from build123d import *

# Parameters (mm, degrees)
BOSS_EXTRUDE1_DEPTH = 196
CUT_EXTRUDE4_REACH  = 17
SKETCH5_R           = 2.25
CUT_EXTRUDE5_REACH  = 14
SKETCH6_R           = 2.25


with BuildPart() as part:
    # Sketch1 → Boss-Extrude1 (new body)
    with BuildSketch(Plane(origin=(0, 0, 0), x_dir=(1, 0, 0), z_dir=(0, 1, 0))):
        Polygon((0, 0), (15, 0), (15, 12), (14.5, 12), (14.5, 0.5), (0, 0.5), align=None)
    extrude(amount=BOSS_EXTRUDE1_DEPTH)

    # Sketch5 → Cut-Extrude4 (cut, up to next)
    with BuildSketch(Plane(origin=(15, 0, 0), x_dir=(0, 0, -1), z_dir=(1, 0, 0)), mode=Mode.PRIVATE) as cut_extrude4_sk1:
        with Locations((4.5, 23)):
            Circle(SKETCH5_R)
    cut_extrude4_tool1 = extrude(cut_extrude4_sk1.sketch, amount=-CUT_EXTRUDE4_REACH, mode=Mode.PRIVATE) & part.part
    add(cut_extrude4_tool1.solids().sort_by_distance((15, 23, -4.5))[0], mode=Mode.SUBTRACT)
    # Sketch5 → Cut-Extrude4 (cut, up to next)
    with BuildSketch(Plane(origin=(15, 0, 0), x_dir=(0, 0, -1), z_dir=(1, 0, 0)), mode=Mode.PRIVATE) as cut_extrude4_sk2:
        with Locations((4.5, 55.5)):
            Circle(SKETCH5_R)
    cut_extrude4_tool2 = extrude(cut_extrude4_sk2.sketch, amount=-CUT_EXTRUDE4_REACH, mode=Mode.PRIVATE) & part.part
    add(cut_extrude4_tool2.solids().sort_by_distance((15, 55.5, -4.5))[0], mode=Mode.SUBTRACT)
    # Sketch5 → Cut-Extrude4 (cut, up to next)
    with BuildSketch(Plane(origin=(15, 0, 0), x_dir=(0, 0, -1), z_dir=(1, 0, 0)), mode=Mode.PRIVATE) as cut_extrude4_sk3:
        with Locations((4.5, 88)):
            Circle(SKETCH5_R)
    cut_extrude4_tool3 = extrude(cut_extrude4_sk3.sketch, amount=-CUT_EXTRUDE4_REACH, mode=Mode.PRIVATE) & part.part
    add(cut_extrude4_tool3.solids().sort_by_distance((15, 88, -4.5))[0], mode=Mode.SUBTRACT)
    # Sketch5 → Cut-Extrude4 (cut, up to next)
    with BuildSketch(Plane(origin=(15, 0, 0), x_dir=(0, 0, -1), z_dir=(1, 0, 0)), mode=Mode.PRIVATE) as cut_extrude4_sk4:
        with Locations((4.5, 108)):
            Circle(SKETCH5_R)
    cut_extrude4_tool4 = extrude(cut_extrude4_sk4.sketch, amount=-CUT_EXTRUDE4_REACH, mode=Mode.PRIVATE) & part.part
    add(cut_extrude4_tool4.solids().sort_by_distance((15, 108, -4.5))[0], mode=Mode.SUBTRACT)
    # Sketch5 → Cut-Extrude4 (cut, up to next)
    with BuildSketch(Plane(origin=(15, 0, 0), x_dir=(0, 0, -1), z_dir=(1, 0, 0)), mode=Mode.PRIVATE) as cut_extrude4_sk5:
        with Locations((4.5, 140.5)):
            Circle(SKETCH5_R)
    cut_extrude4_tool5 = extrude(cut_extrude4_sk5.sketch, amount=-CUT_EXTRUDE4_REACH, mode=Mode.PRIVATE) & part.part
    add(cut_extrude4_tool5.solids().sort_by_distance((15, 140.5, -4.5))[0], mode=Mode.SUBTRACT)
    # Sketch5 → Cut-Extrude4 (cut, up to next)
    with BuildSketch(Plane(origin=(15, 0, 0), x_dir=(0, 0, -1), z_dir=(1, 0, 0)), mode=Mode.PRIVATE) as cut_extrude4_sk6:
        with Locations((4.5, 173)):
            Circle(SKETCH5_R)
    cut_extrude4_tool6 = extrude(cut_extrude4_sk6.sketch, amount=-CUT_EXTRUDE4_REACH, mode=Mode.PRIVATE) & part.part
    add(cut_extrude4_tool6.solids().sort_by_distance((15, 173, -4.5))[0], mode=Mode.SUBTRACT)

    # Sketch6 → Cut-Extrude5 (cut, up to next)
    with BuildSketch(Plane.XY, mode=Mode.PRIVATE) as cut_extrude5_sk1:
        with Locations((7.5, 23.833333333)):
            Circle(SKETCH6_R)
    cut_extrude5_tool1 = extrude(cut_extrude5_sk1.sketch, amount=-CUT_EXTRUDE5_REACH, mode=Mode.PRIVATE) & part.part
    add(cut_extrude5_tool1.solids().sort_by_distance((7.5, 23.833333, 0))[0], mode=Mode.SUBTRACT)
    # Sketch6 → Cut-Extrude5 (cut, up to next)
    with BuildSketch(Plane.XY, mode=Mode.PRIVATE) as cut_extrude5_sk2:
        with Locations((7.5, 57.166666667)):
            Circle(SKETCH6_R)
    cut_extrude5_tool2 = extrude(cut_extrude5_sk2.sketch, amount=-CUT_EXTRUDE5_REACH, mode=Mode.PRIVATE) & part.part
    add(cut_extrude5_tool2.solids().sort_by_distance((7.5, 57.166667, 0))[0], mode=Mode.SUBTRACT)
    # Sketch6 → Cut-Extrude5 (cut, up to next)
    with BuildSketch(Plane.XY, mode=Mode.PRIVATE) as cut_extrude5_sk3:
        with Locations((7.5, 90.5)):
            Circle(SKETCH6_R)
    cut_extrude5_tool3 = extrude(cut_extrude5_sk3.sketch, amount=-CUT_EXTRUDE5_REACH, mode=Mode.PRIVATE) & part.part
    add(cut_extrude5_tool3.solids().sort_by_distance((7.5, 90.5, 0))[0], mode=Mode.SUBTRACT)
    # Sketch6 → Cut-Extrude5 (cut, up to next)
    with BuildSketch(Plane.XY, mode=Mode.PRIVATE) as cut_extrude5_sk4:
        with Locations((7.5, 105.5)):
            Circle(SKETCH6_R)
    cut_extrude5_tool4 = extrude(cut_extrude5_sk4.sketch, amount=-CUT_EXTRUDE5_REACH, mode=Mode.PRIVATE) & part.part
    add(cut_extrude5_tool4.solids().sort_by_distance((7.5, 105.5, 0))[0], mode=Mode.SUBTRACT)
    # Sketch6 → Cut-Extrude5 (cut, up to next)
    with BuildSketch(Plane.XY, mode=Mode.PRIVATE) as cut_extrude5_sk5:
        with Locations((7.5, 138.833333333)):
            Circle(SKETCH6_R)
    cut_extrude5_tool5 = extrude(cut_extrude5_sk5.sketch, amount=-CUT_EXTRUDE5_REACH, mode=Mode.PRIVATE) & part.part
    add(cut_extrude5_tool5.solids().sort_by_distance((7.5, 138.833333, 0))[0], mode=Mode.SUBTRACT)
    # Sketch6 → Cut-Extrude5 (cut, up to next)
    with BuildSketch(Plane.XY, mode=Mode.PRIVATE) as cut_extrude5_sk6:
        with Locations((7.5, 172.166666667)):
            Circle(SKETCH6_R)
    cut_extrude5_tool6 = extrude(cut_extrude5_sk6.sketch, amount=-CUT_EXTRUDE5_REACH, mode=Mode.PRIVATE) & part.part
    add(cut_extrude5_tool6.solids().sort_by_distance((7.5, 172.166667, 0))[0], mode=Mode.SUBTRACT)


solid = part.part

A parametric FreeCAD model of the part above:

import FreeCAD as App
import Part
import Sketcher
from FreeCAD import Vector
Q = App.Units.Quantity

doc = App.newDocument("Part")
params = doc.addObject("Spreadsheet::Sheet", "Params")
for row, (alias, value) in enumerate([
    ("sketch1_width", "15 mm"),
    ("sketch1_height", "12 mm"),
    ("sketch1_width2", "0.5 mm"),
    ("pad1_length", "196 mm"),
    ("sketch2_diameter", "4.5 mm"),
    ("sketch3_diameter", "4.5 mm"),
    ("sketch4_diameter", "4.5 mm"),
    ("sketch5_diameter", "4.5 mm"),
    ("sketch6_diameter", "4.5 mm"),
    ("sketch7_diameter", "4.5 mm"),
    ("sketch8_diameter", "4.5 mm"),
    ("sketch9_diameter", "4.5 mm"),
    ("sketch10_diameter", "4.5 mm"),
    ("sketch11_diameter", "4.5 mm"),
    ("sketch12_diameter", "4.5 mm"),
    ("sketch13_diameter", "4.5 mm"),
], start=1):
    params.set(f"A{row}", alias)
    params.set(f"B{row}", "=" + value)
    params.setAlias(f"B{row}", alias)

body = doc.addObject("PartDesign::Body", "Body")

sketch1 = body.newObject("Sketcher::SketchObject", "Sketch")
sketch1.AttachmentSupport = (doc.getObject("XZ_Plane"), [""])
sketch1.MapMode = "FlatFace"
sketch1.addGeometry([
    Part.LineSegment(Vector(0, 0, 0), Vector(15, 0, 0)),
    Part.LineSegment(Vector(15, 0, 0), Vector(15, -12, 0)),
    Part.LineSegment(Vector(15, -12, 0), Vector(14.5, -12, 0)),
    Part.LineSegment(Vector(14.5, -12, 0), Vector(14.5, -0.5, 0)),
    Part.LineSegment(Vector(14.5, -0.5, 0), Vector(0, -0.5, 0)),
    Part.LineSegment(Vector(0, -0.5, 0), Vector(0, 0, 0)),
], False)
sketch1.addConstraint([
    Sketcher.Constraint("Coincident", 0, 2, 1, 1),
    Sketcher.Constraint("Coincident", 1, 2, 2, 1),
    Sketcher.Constraint("Coincident", 2, 2, 3, 1),
    Sketcher.Constraint("Coincident", 3, 2, 4, 1),
    Sketcher.Constraint("Coincident", 4, 2, 5, 1),
    Sketcher.Constraint("Coincident", 5, 2, 0, 1),
    Sketcher.Constraint("Horizontal", 0),
    Sketcher.Constraint("Vertical", 1),
    Sketcher.Constraint("Horizontal", 2),
    Sketcher.Constraint("Vertical", 3),
    Sketcher.Constraint("Horizontal", 4),
    Sketcher.Constraint("Vertical", 5),
    Sketcher.Constraint("Coincident", 5, 2, -1, 1),
    Sketcher.Constraint("Equal", 2, 5),
    Sketcher.Constraint("DistanceX", 0, 1, 0, 2, Q("15 mm")),
    Sketcher.Constraint("DistanceY", 1, 2, 1, 1, Q("12 mm")),
    Sketcher.Constraint("DistanceX", 2, 2, 2, 1, Q("0.5 mm")),
])
sketch1.setExpression("Constraints[14]", "Params.sketch1_width")
sketch1.setExpression("Constraints[15]", "Params.sketch1_height")
sketch1.setExpression("Constraints[16]", "Params.sketch1_width2")
pad1 = body.newObject("PartDesign::Pad", "Pad")
pad1.Profile = sketch1
pad1.setExpression("Length", "Params.pad1_length")
pad1.Reversed = True

sketch2 = body.newObject("Sketcher::SketchObject", "Sketch001")
sketch2.AttachmentSupport = (doc.getObject("YZ_Plane"), [""])
sketch2.MapMode = "FlatFace"
sketch2.AttachmentOffset = App.Placement(Vector(0, 0, 15), App.Rotation())
sketch2.addGeometry(Part.Circle(Vector(23, -4.5, 0), Vector(0, 0, 1), 2.2), False)
sketch2.addConstraint([
    Sketcher.Constraint("Diameter", 0, Q("4.5 mm")),
    Sketcher.Constraint("DistanceX", -1, 1, 0, 3, Q("23 mm")),
    Sketcher.Constraint("DistanceY", 0, 3, -1, 1, Q("4.5 mm")),
])
sketch2.setExpression("Constraints[0]", "Params.sketch2_diameter")
pocket1 = body.newObject("PartDesign::Pocket", "Pocket")
pocket1.Profile = sketch2
pocket1.Type = "UpToFirst"

sketch3 = body.newObject("Sketcher::SketchObject", "Sketch002")
sketch3.AttachmentSupport = (doc.getObject("YZ_Plane"), [""])
sketch3.MapMode = "FlatFace"
sketch3.AttachmentOffset = App.Placement(Vector(0, 0, 15), App.Rotation())
sketch3.addGeometry(Part.Circle(Vector(55.5, -4.5, 0), Vector(0, 0, 1), 2.2), False)
sketch3.addConstraint([
    Sketcher.Constraint("Diameter", 0, Q("4.5 mm")),
    Sketcher.Constraint("DistanceX", -1, 1, 0, 3, Q("55.5 mm")),
    Sketcher.Constraint("DistanceY", 0, 3, -1, 1, Q("4.5 mm")),
])
sketch3.setExpression("Constraints[0]", "Params.sketch3_diameter")
pocket2 = body.newObject("PartDesign::Pocket", "Pocket001")
pocket2.Profile = sketch3
pocket2.Type = "UpToFirst"

sketch4 = body.newObject("Sketcher::SketchObject", "Sketch003")
sketch4.AttachmentSupport = (doc.getObject("YZ_Plane"), [""])
sketch4.MapMode = "FlatFace"
sketch4.AttachmentOffset = App.Placement(Vector(0, 0, 15), App.Rotation())
sketch4.addGeometry(Part.Circle(Vector(88, -4.5, 0), Vector(0, 0, 1), 2.2), False)
sketch4.addConstraint([
    Sketcher.Constraint("Diameter", 0, Q("4.5 mm")),
    Sketcher.Constraint("DistanceX", -1, 1, 0, 3, Q("88 mm")),
    Sketcher.Constraint("DistanceY", 0, 3, -1, 1, Q("4.5 mm")),
])
sketch4.setExpression("Constraints[0]", "Params.sketch4_diameter")
pocket3 = body.newObject("PartDesign::Pocket", "Pocket002")
pocket3.Profile = sketch4
pocket3.Type = "UpToFirst"

sketch5 = body.newObject("Sketcher::SketchObject", "Sketch004")
sketch5.AttachmentSupport = (doc.getObject("YZ_Plane"), [""])
sketch5.MapMode = "FlatFace"
sketch5.AttachmentOffset = App.Placement(Vector(0, 0, 15), App.Rotation())
sketch5.addGeometry(Part.Circle(Vector(108, -4.5, 0), Vector(0, 0, 1), 2.2), False)
sketch5.addConstraint([
    Sketcher.Constraint("Diameter", 0, Q("4.5 mm")),
    Sketcher.Constraint("DistanceX", -1, 1, 0, 3, Q("108 mm")),
    Sketcher.Constraint("DistanceY", 0, 3, -1, 1, Q("4.5 mm")),
])
sketch5.setExpression("Constraints[0]", "Params.sketch5_diameter")
pocket4 = body.newObject("PartDesign::Pocket", "Pocket003")
pocket4.Profile = sketch5
pocket4.Type = "UpToFirst"

sketch6 = body.newObject("Sketcher::SketchObject", "Sketch005")
sketch6.AttachmentSupport = (doc.getObject("YZ_Plane"), [""])
sketch6.MapMode = "FlatFace"
sketch6.AttachmentOffset = App.Placement(Vector(0, 0, 15), App.Rotation())
sketch6.addGeometry(Part.Circle(Vector(140.5, -4.5, 0), Vector(0, 0, 1), 2.2), False)
sketch6.addConstraint([
    Sketcher.Constraint("Diameter", 0, Q("4.5 mm")),
    Sketcher.Constraint("DistanceX", -1, 1, 0, 3, Q("140.5 mm")),
    Sketcher.Constraint("DistanceY", 0, 3, -1, 1, Q("4.5 mm")),
])
sketch6.setExpression("Constraints[0]", "Params.sketch6_diameter")
pocket5 = body.newObject("PartDesign::Pocket", "Pocket004")
pocket5.Profile = sketch6
pocket5.Type = "UpToFirst"

sketch7 = body.newObject("Sketcher::SketchObject", "Sketch006")
sketch7.AttachmentSupport = (doc.getObject("YZ_Plane"), [""])
sketch7.MapMode = "FlatFace"
sketch7.AttachmentOffset = App.Placement(Vector(0, 0, 15), App.Rotation())
sketch7.addGeometry(Part.Circle(Vector(173, -4.5, 0), Vector(0, 0, 1), 2.2), False)
sketch7.addConstraint([
    Sketcher.Constraint("Diameter", 0, Q("4.5 mm")),
    Sketcher.Constraint("DistanceX", -1, 1, 0, 3, Q("173 mm")),
    Sketcher.Constraint("DistanceY", 0, 3, -1, 1, Q("4.5 mm")),
])
sketch7.setExpression("Constraints[0]", "Params.sketch7_diameter")
pocket6 = body.newObject("PartDesign::Pocket", "Pocket005")
pocket6.Profile = sketch7
pocket6.Type = "UpToFirst"

sketch8 = body.newObject("Sketcher::SketchObject", "Sketch007")
sketch8.AttachmentSupport = (doc.getObject("XY_Plane"), [""])
sketch8.MapMode = "FlatFace"
sketch8.addGeometry(Part.Circle(Vector(7.5, 23.8, 0), Vector(0, 0, 1), 2.2), False)
sketch8.addConstraint([
    Sketcher.Constraint("Diameter", 0, Q("4.5 mm")),
    Sketcher.Constraint("DistanceX", -1, 1, 0, 3, Q("7.5 mm")),
    Sketcher.Constraint("DistanceY", -1, 1, 0, 3, Q("23.833333 mm")),
])
sketch8.setExpression("Constraints[0]", "Params.sketch8_diameter")
pocket7 = body.newObject("PartDesign::Pocket", "Pocket006")
pocket7.Profile = sketch8
pocket7.Type = "UpToFirst"

sketch9 = body.newObject("Sketcher::SketchObject", "Sketch008")
sketch9.AttachmentSupport = (doc.getObject("XY_Plane"), [""])
sketch9.MapMode = "FlatFace"
sketch9.addGeometry(Part.Circle(Vector(7.5, 57.2, 0), Vector(0, 0, 1), 2.2), False)
sketch9.addConstraint([
    Sketcher.Constraint("Diameter", 0, Q("4.5 mm")),
    Sketcher.Constraint("DistanceX", -1, 1, 0, 3, Q("7.5 mm")),
    Sketcher.Constraint("DistanceY", -1, 1, 0, 3, Q("57.166667 mm")),
])
sketch9.setExpression("Constraints[0]", "Params.sketch9_diameter")
pocket8 = body.newObject("PartDesign::Pocket", "Pocket007")
pocket8.Profile = sketch9
pocket8.Type = "UpToFirst"

sketch10 = body.newObject("Sketcher::SketchObject", "Sketch009")
sketch10.AttachmentSupport = (doc.getObject("XY_Plane"), [""])
sketch10.MapMode = "FlatFace"
sketch10.addGeometry(Part.Circle(Vector(7.5, 90.5, 0), Vector(0, 0, 1), 2.2), False)
sketch10.addConstraint([
    Sketcher.Constraint("Diameter", 0, Q("4.5 mm")),
    Sketcher.Constraint("DistanceX", -1, 1, 0, 3, Q("7.5 mm")),
    Sketcher.Constraint("DistanceY", -1, 1, 0, 3, Q("90.5 mm")),
])
sketch10.setExpression("Constraints[0]", "Params.sketch10_diameter")
pocket9 = body.newObject("PartDesign::Pocket", "Pocket008")
pocket9.Profile = sketch10
pocket9.Type = "UpToFirst"

sketch11 = body.newObject("Sketcher::SketchObject", "Sketch010")
sketch11.AttachmentSupport = (doc.getObject("XY_Plane"), [""])
sketch11.MapMode = "FlatFace"
sketch11.addGeometry(Part.Circle(Vector(7.5, 105.5, 0), Vector(0, 0, 1), 2.2), False)
sketch11.addConstraint([
    Sketcher.Constraint("Diameter", 0, Q("4.5 mm")),
    Sketcher.Constraint("DistanceX", -1, 1, 0, 3, Q("7.5 mm")),
    Sketcher.Constraint("DistanceY", -1, 1, 0, 3, Q("105.5 mm")),
])
sketch11.setExpression("Constraints[0]", "Params.sketch11_diameter")
pocket10 = body.newObject("PartDesign::Pocket", "Pocket009")
pocket10.Profile = sketch11
pocket10.Type = "UpToFirst"

sketch12 = body.newObject("Sketcher::SketchObject", "Sketch011")
sketch12.AttachmentSupport = (doc.getObject("XY_Plane"), [""])
sketch12.MapMode = "FlatFace"
sketch12.addGeometry(Part.Circle(Vector(7.5, 138.8, 0), Vector(0, 0, 1), 2.2), False)
sketch12.addConstraint([
    Sketcher.Constraint("Diameter", 0, Q("4.5 mm")),
    Sketcher.Constraint("DistanceX", -1, 1, 0, 3, Q("7.5 mm")),
    Sketcher.Constraint("DistanceY", -1, 1, 0, 3, Q("138.833333 mm")),
])
sketch12.setExpression("Constraints[0]", "Params.sketch12_diameter")
pocket11 = body.newObject("PartDesign::Pocket", "Pocket010")
pocket11.Profile = sketch12
pocket11.Type = "UpToFirst"

sketch13 = body.newObject("Sketcher::SketchObject", "Sketch012")
sketch13.AttachmentSupport = (doc.getObject("XY_Plane"), [""])
sketch13.MapMode = "FlatFace"
sketch13.addGeometry(Part.Circle(Vector(7.5, 172.2, 0), Vector(0, 0, 1), 2.2), False)
sketch13.addConstraint([
    Sketcher.Constraint("Diameter", 0, Q("4.5 mm")),
    Sketcher.Constraint("DistanceX", -1, 1, 0, 3, Q("7.5 mm")),
    Sketcher.Constraint("DistanceY", -1, 1, 0, 3, Q("172.166667 mm")),
])
sketch13.setExpression("Constraints[0]", "Params.sketch13_diameter")
pocket12 = body.newObject("PartDesign::Pocket", "Pocket011")
pocket12.Profile = sketch13
pocket12.Type = "UpToFirst"

doc.recompute()
